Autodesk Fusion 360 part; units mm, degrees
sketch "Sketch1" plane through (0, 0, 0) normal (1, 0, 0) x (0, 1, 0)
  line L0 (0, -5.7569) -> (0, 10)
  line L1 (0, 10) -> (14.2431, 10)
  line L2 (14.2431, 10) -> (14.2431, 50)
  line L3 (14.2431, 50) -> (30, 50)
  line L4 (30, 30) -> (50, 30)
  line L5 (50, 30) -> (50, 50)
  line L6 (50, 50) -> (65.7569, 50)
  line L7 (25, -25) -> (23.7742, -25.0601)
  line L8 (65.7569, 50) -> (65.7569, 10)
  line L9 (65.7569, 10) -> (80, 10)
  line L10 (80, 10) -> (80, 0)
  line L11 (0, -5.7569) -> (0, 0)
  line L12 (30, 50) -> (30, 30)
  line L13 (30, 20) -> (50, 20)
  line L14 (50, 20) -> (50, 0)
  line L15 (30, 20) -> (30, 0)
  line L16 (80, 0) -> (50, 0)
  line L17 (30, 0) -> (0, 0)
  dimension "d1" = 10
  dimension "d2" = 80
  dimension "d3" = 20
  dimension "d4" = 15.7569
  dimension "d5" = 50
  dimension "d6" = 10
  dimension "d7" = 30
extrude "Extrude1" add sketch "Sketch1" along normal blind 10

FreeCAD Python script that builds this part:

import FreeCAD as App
import Part
import Sketcher

V = App.Vector
Q = App.Units.Quantity

doc = App.newDocument("Part")
params = doc.addObject("Spreadsheet::Sheet", "Params")
for row, (alias, value) in enumerate([
    ("sketch1_width", "30 mm"),
    ("sketch1_width2", "20 mm"),
    ("sketch1_height", "10 mm"),
    ("pad1_length", "10 mm"),
], start=1):
    params.set(f"A{row}", alias)
    params.set(f"B{row}", "=" + value)
    params.setAlias(f"B{row}", alias)

body = doc.addObject("PartDesign::Body", "Body")

sketch1 = body.newObject("Sketcher::SketchObject", "Sketch")
sketch1.AttachmentSupport = (doc.getObject("YZ_Plane"), [""])
sketch1.MapMode = "FlatFace"
sketch1.addGeometry([
    Part.LineSegment(V(0, 10, 0), V(0, 0, 0)),
    Part.LineSegment(V(0, 0, 0), V(30, 0, 0)),
    Part.LineSegment(V(30, 0, 0), V(30, 20, 0)),
    Part.LineSegment(V(30, 20, 0), V(50, 20, 0)),
    Part.LineSegment(V(50, 20, 0), V(50, 0, 0)),
    Part.LineSegment(V(50, 0, 0), V(80, 0, 0)),
    Part.LineSegment(V(80, 0, 0), V(80, 10, 0)),
    Part.LineSegment(V(80, 10, 0), V(65.7569, 10, 0)),
    Part.LineSegment(V(65.7569, 10, 0), V(65.7569, 50, 0)),
    Part.LineSegment(V(65.7569, 50, 0), V(50, 50, 0)),
    Part.LineSegment(V(50, 50, 0), V(50, 30, 0)),
    Part.LineSegment(V(50, 30, 0), V(30, 30, 0)),
    Part.LineSegment(V(30, 30, 0), V(30, 50, 0)),
    Part.LineSegment(V(30, 50, 0), V(14.2431, 50, 0)),
    Part.LineSegment(V(14.2431, 50, 0), V(14.2431, 10, 0)),
    Part.LineSegment(V(14.2431, 10, 0), V(0, 10, 0)),
], False)
sketch1.addConstraint([
    Sketcher.Constraint("Coincident", 0, 2, 1, 1),
    Sketcher.Constraint("Coincident", 1, 2, 2, 1),
    Sketcher.Constraint("Coincident", 2, 2, 3, 1),
    Sketcher.Constraint("Coincident", 3, 2, 4, 1),
    Sketcher.Constraint("Coincident", 4, 2, 5, 1),
    Sketcher.Constraint("Coincident", 5, 2, 6, 1),
    Sketcher.Constraint("Coincident", 6, 2, 7, 1),
    Sketcher.Constraint("Coincident", 7, 2, 8, 1),
    Sketcher.Constraint("Coincident", 8, 2, 9, 1),
    Sketcher.Constraint("Coincident", 9, 2, 10, 1),
    Sketcher.Constraint("Coincident", 10, 2, 11, 1),
    Sketcher.Constraint("Coincident", 11, 2, 12, 1),
    Sketcher.Constraint("Coincident", 12, 2, 13, 1),
    Sketcher.Constraint("Coincident", 13, 2, 14, 1),
    Sketcher.Constraint("Coincident", 14, 2, 15, 1),
    Sketcher.Constraint("Coincident", 15, 2, 0, 1),
    Sketcher.Constraint("Vertical", 0),
    Sketcher.Constraint("Horizontal", 1),
    Sketcher.Constraint("Vertical", 2),
    Sketcher.Constraint("Horizontal", 3),
    Sketcher.Constraint("Vertical", 4),
    Sketcher.Constraint("Horizontal", 5),
    Sketcher.Constraint("Vertical", 6),
    Sketcher.Constraint("Horizontal", 7),
    Sketcher.Constraint("Vertical", 8),
    Sketcher.Constraint("Horizontal", 9),
    Sketcher.Constraint("Vertical", 10),
    Sketcher.Constraint("Horizontal", 11),
    Sketcher.Constraint("Vertical", 12),
    Sketcher.Constraint("Horizontal", 13),
    Sketcher.Constraint("Vertical", 14),
    Sketcher.Constraint("Horizontal", 15),
    Sketcher.Constraint("Coincident", 0, 2, -1, 1),
    Sketcher.Constraint("PointOnObject", 4, 2, -1),
    Sketcher.Constraint("Horizontal", 9, 2, 12, 2),
    Sketcher.Constraint("Horizontal", 7, 2, 14, 2),
    Sketcher.Constraint("Vertical", 4, 2, 9, 2),
    Sketcher.Constraint("Vertical", 2, 2, 11, 2),
    Sketcher.Constraint("Equal", 1, 5),
    Sketcher.Constraint("Equal", 9, 13),
    Sketcher.Constraint("Equal", 11, 2),
    Sketcher.Constraint("Equal", 4, 10),
    Sketcher.Constraint("DistanceX", 1, 1, 1, 2, Q("30 mm")),
    Sketcher.Constraint("DistanceX", 3, 1, 3, 2, Q("20 mm")),
    Sketcher.Constraint("DistanceY", 0, 2, 0, 1, Q("10 mm")),
    Sketcher.Constraint("DistanceY", -1, 1, 8, 2, Q("50 mm")),
    Sketcher.Constraint("DistanceX", 9, 2, 9, 1, Q("15.757 mm")),
])
sketch1.setExpression("Constraints[42]", "Params.sketch1_width")
sketch1.setExpression("Constraints[43]", "Params.sketch1_width2")
sketch1.setExpression("Constraints[44]", "Params.sketch1_height")
pad1 = body.newObject("PartDesign::Pad", "Pad")
pad1.Profile = sketch1
pad1.setExpression("Length", "Params.pad1_length")

doc.recompute()
